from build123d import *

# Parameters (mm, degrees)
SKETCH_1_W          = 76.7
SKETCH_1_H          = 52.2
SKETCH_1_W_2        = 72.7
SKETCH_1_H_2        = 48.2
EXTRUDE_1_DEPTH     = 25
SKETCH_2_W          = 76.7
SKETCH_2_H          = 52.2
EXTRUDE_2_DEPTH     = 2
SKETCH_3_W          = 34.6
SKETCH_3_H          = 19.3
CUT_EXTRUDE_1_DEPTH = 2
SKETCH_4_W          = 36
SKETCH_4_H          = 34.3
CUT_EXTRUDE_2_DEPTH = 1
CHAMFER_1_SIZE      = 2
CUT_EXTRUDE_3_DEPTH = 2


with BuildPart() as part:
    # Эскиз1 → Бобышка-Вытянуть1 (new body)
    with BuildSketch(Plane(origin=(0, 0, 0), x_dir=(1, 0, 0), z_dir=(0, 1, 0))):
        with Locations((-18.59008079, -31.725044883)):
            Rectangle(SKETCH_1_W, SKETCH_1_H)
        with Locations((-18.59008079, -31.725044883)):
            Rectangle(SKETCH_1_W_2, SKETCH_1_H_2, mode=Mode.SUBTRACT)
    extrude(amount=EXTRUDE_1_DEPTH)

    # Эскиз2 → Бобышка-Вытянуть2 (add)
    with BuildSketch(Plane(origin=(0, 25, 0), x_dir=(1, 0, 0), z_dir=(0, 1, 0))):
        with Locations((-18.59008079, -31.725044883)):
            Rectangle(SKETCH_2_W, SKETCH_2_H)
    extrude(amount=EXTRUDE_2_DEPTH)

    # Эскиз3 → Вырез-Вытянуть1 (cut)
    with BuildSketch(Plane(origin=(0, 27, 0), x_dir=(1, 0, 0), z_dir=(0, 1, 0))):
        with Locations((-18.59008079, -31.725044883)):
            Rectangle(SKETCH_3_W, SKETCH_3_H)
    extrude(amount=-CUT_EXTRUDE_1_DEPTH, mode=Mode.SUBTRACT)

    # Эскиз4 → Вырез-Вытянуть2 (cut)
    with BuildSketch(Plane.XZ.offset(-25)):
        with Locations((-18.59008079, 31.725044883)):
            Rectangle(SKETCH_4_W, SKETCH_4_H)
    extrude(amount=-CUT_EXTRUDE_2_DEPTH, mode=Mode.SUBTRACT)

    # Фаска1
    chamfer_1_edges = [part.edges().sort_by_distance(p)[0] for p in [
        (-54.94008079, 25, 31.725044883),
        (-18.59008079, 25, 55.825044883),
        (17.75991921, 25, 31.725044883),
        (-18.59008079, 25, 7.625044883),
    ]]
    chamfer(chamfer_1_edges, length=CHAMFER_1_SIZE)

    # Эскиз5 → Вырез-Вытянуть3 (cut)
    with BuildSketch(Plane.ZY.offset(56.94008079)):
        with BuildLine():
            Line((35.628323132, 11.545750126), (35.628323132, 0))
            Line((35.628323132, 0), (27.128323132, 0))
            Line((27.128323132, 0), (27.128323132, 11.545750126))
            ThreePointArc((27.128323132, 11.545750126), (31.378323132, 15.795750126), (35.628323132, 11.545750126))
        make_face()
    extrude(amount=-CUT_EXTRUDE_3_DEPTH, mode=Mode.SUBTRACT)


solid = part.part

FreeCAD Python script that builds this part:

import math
import FreeCAD as App
import Part
import Sketcher


def edges_at(feature, points):
    """Names of the edges that pass closest to the given points."""
    edges = feature.Shape.Edges
    near = lambda p: min(range(len(edges)), key=lambda i: edges[i].distToShape(Part.Vertex(*p))[0])
    return sorted({f"Edge{near(p) + 1}" for p in points})

doc = App.newDocument("Part")
params = doc.addObject("Spreadsheet::Sheet", "Params")
for row, (alias, value) in enumerate([
    ("sketch1_width", "76.7 mm"),
    ("sketch1_width2", "72.7 mm"),
    ("sketch1_height", "52.2 mm"),
    ("sketch1_height2", "48.2 mm"),
    ("pad1_length", "25 mm"),
    ("sketch2_width", "76.7 mm"),
    ("sketch2_height", "52.2 mm"),
    ("pad2_length", "2 mm"),
    ("sketch3_width", "34.6 mm"),
    ("sketch3_height", "19.3 mm"),
    ("pocket1_length", "2 mm"),
    ("sketch4_width", "36 mm"),
    ("sketch4_height", "34.3 mm"),
    ("pocket2_length", "1 mm"),
    ("chamfer_size", "2 mm"),
    ("sketch5_radius", "4.25 mm"),
    ("pocket3_length", "2 mm"),
], start=1):
    params.set(f"A{row}", alias)
    params.set(f"B{row}", "=" + value)
    params.setAlias(f"B{row}", alias)

body = doc.addObject("PartDesign::Body", "Body")

sketch1 = body.newObject("Sketcher::SketchObject", "Sketch")
sketch1.AttachmentSupport = (doc.getObject("XZ_Plane"), [""])
sketch1.MapMode = "FlatFace"
sketch1.addGeometry(Part.LineSegment(App.Vector(-57, 6, 0), App.Vector(-57, 58, 0)), False)
sketch1.addGeometry(Part.LineSegment(App.Vector(-57, 58, 0), App.Vector(20, 58, 0)), False)
sketch1.addGeometry(Part.LineSegment(App.Vector(20, 58, 0), App.Vector(20, 6, 0)), False)
sketch1.addGeometry(Part.LineSegment(App.Vector(20, 6, 0), App.Vector(-57, 6, 0)), False)
sketch1.addGeometry(Part.LineSegment(App.Vector(18, 56, 0), App.Vector(-55, 56, 0)), False)
sketch1.addGeometry(Part.LineSegment(App.Vector(-55, 56, 0), App.Vector(-55, 8, 0)), False)
sketch1.addGeometry(Part.LineSegment(App.Vector(-55, 8, 0), App.Vector(18, 8, 0)), False)
sketch1.addGeometry(Part.LineSegment(App.Vector(18, 8, 0), App.Vector(18, 56, 0)), False)
sketch1.addConstraint(Sketcher.Constraint("Coincident", 0, 2, 1, 1))
sketch1.addConstraint(Sketcher.Constraint("Coincident", 1, 2, 2, 1))
sketch1.addConstraint(Sketcher.Constraint("Coincident", 2, 2, 3, 1))
sketch1.addConstraint(Sketcher.Constraint("Coincident", 3, 2, 0, 1))
sketch1.addConstraint(Sketcher.Constraint("Coincident", 4, 2, 5, 1))
sketch1.addConstraint(Sketcher.Constraint("Coincident", 5, 2, 6, 1))
sketch1.addConstraint(Sketcher.Constraint("Coincident", 6, 2, 7, 1))
sketch1.addConstraint(Sketcher.Constraint("Coincident", 7, 2, 4, 1))
sketch1.addConstraint(Sketcher.Constraint("Vertical", 0))
sketch1.addConstraint(Sketcher.Constraint("Horizontal", 1))
sketch1.addConstraint(Sketcher.Constraint("Vertical", 2))
sketch1.addConstraint(Sketcher.Constraint("Horizontal", 3))
sketch1.addConstraint(Sketcher.Constraint("Horizontal", 4))
sketch1.addConstraint(Sketcher.Constraint("Vertical", 5))
sketch1.addConstraint(Sketcher.Constraint("Horizontal", 6))
sketch1.addConstraint(Sketcher.Constraint("Vertical", 7))
sketch1.addConstraint(Sketcher.Constraint("DistanceX", 1, 1, 1, 2, 76.7))
sketch1.addConstraint(Sketcher.Constraint("DistanceX", 4, 2, 4, 1, 72.7))
sketch1.addConstraint(Sketcher.Constraint("DistanceY", 0, 1, 0, 2, 52.2))
sketch1.addConstraint(Sketcher.Constraint("DistanceY", 5, 2, 5, 1, 48.2))
sketch1.addConstraint(Sketcher.Constraint("DistanceX", 0, 2, 4, 2, 2.0))
sketch1.addConstraint(Sketcher.Constraint("DistanceY", 4, 2, 0, 2, 2.0))
sketch1.addConstraint(Sketcher.Constraint("DistanceX", 0, 2, -1, 1, 56.940081))
sketch1.addConstraint(Sketcher.Constraint("DistanceY", -1, 1, 0, 2, 57.825045))
sketch1.setExpression("Constraints[16]", "Params.sketch1_width")
sketch1.setExpression("Constraints[17]", "Params.sketch1_width2")
sketch1.setExpression("Constraints[18]", "Params.sketch1_height")
sketch1.setExpression("Constraints[19]", "Params.sketch1_height2")
pad1 = body.newObject("PartDesign::Pad", "Pad")
pad1.Profile = sketch1
pad1.setExpression("Length", "Params.pad1_length")
pad1.Reversed = True

sketch2 = body.newObject("Sketcher::SketchObject", "Sketch001")
sketch2.AttachmentSupport = (doc.getObject("XZ_Plane"), [""])
sketch2.MapMode = "FlatFace"
sketch2.AttachmentOffset = App.Placement(App.Vector(0, 0, -25), App.Rotation())
sketch2.addGeometry(Part.LineSegment(App.Vector(-57, 6, 0), App.Vector(-57, 58, 0)), False)
sketch2.addGeometry(Part.LineSegment(App.Vector(-57, 58, 0), App.Vector(20, 58, 0)), False)
sketch2.addGeometry(Part.LineSegment(App.Vector(20, 58, 0), App.Vector(20, 6, 0)), False)
sketch2.addGeometry(Part.LineSegment(App.Vector(20, 6, 0), App.Vector(-57, 6, 0)), False)
sketch2.addConstraint(Sketcher.Constraint("Coincident", 0, 2, 1, 1))
sketch2.addConstraint(Sketcher.Constraint("Coincident", 1, 2, 2, 1))
sketch2.addConstraint(Sketcher.Constraint("Coincident", 2, 2, 3, 1))
sketch2.addConstraint(Sketcher.Constraint("Coincident", 3, 2, 0, 1))
sketch2.addConstraint(Sketcher.Constraint("Vertical", 0))
sketch2.addConstraint(Sketcher.Constraint("Horizontal", 1))
sketch2.addConstraint(Sketcher.Constraint("Vertical", 2))
sketch2.addConstraint(Sketcher.Constraint("Horizontal", 3))
sketch2.addConstraint(Sketcher.Constraint("DistanceX", 1, 1, 1, 2, 76.7))
sketch2.addConstraint(Sketcher.Constraint("DistanceY", 0, 1, 0, 2, 52.2))
sketch2.addConstraint(Sketcher.Constraint("DistanceX", 0, 2, -1, 1, 56.940081))
sketch2.addConstraint(Sketcher.Constraint("DistanceY", -1, 1, 0, 2, 57.825045))
sketch2.setExpression("Constraints[8]", "Params.sketch2_width")
sketch2.setExpression("Constraints[9]", "Params.sketch2_height")
pad2 = body.newObject("PartDesign::Pad", "Pad001")
pad2.Profile = sketch2
pad2.setExpression("Length", "Params.pad2_length")
pad2.Reversed = True

sketch3 = body.newObject("Sketcher::SketchObject", "Sketch002")
sketch3.AttachmentSupport = (doc.getObject("XZ_Plane"), [""])
sketch3.MapMode = "FlatFace"
sketch3.AttachmentOffset = App.Placement(App.Vector(0, 0, -27), App.Rotation())
sketch3.addGeometry(Part.LineSegment(App.Vector(-36, 22, 0), App.Vector(-36, 41, 0)), False)
sketch3.addGeometry(Part.LineSegment(App.Vector(-36, 41, 0), App.Vector(-1, 41, 0)), False)
sketch3.addGeometry(Part.LineSegment(App.Vector(-1, 41, 0), App.Vector(-1, 22, 0)), False)
sketch3.addGeometry(Part.LineSegment(App.Vector(-1, 22, 0), App.Vector(-36, 22, 0)), False)
sketch3.addConstraint(Sketcher.Constraint("Coincident", 0, 2, 1, 1))
sketch3.addConstraint(Sketcher.Constraint("Coincident", 1, 2, 2, 1))
sketch3.addConstraint(Sketcher.Constraint("Coincident", 2, 2, 3, 1))
sketch3.addConstraint(Sketcher.Constraint("Coincident", 3, 2, 0, 1))
sketch3.addConstraint(Sketcher.Constraint("Vertical", 0))
sketch3.addConstraint(Sketcher.Constraint("Horizontal", 1))
sketch3.addConstraint(Sketcher.Constraint("Vertical", 2))
sketch3.addConstraint(Sketcher.Constraint("Horizontal", 3))
sketch3.addConstraint(Sketcher.Constraint("DistanceX", 1, 1, 1, 2, 34.6))
sketch3.addConstraint(Sketcher.Constraint("DistanceY", 0, 1, 0, 2, 19.3))
sketch3.addConstraint(Sketcher.Constraint("DistanceX", 0, 2, -1, 1, 35.890081))
sketch3.addConstraint(Sketcher.Constraint("DistanceY", -1, 1, 0, 2, 41.375045))
sketch3.setExpression("Constraints[8]", "Params.sketch3_width")
sketch3.setExpression("Constraints[9]", "Params.sketch3_height")
pocket1 = body.newObject("PartDesign::Pocket", "Pocket")
pocket1.Profile = sketch3
pocket1.setExpression("Length", "Params.pocket1_length")
pocket1.Reversed = True

sketch4 = body.newObject("Sketcher::SketchObject", "Sketch003")
sketch4.AttachmentSupport = (doc.getObject("XZ_Plane"), [""])
sketch4.MapMode = "FlatFace"
sketch4.AttachmentOffset = App.Placement(App.Vector(0, 0, -25), App.Rotation())
sketch4.addGeometry(Part.LineSegment(App.Vector(-37, 49, 0), App.Vector(-37, 15, 0)), False)
sketch4.addGeometry(Part.LineSegment(App.Vector(-37, 15, 0), App.Vector(-1, 15, 0)), False)
sketch4.addGeometry(Part.LineSegment(App.Vector(-1, 15, 0), App.Vector(-1, 49, 0)), False)
sketch4.addGeometry(Part.LineSegment(App.Vector(-1, 49, 0), App.Vector(-37, 49, 0)), False)
sketch4.addConstraint(Sketcher.Constraint("Coincident", 0, 2, 1, 1))
sketch4.addConstraint(Sketcher.Constraint("Coincident", 1, 2, 2, 1))
sketch4.addConstraint(Sketcher.Constraint("Coincident", 2, 2, 3, 1))
sketch4.addConstraint(Sketcher.Constraint("Coincident", 3, 2, 0, 1))
sketch4.addConstraint(Sketcher.Constraint("Vertical", 0))
sketch4.addConstraint(Sketcher.Constraint("Horizontal", 1))
sketch4.addConstraint(Sketcher.Constraint("Vertical", 2))
sketch4.addConstraint(Sketcher.Constraint("Horizontal", 3))
sketch4.addConstraint(Sketcher.Constraint("DistanceX", 1, 1, 1, 2, 36.0))
sketch4.addConstraint(Sketcher.Constraint("DistanceY", 0, 2, 0, 1, 34.3))
sketch4.addConstraint(Sketcher.Constraint("DistanceX", 0, 2, -1, 1, 36.590081))
sketch4.addConstraint(Sketcher.Constraint("DistanceY", -1, 1, 0, 2, 14.575045))
sketch4.setExpression("Constraints[8]", "Params.sketch4_width")
sketch4.setExpression("Constraints[9]", "Params.sketch4_height")
pocket2 = body.newObject("PartDesign::Pocket", "Pocket001")
pocket2.Profile = sketch4
pocket2.setExpression("Length", "Params.pocket2_length")
doc.recompute()

chamfer = body.newObject("PartDesign::Chamfer", "Chamfer")
chamfer.Base = (pocket2, edges_at(pocket2, [
    (-54.94, 25, 31.725),
    (-18.59, 25, 55.825),
    (17.76, 25, 31.725),
    (-18.59, 25, 7.625),
]))
chamfer.setExpression("Size", "Params.chamfer_size")

sketch5 = body.newObject("Sketcher::SketchObject", "Sketch004")
sketch5.AttachmentSupport = (doc.getObject("YZ_Plane"), [""])
sketch5.MapMode = "FlatFace"
sketch5.AttachmentOffset = App.Placement(App.Vector(0, 0, -56.940081), App.Rotation())
sketch5.addGeometry(Part.LineSegment(App.Vector(0, 35.6, 0), App.Vector(11.5, 35.6, 0)), False)
sketch5.addGeometry(Part.ArcOfCircle(Part.Circle(App.Vector(11.5, 31.4, 0), App.Vector(0, 0, 1), 4.2), math.radians(-90), math.radians(90)), False)
sketch5.addGeometry(Part.LineSegment(App.Vector(11.5, 27.1, 0), App.Vector(0, 27.1, 0)), False)
sketch5.addGeometry(Part.LineSegment(App.Vector(0, 27.1, 0), App.Vector(0, 35.6, 0)), False)
sketch5.addConstraint(Sketcher.Constraint("Tangent", 0, 2, 1, 2))
sketch5.addConstraint(Sketcher.Constraint("Tangent", 1, 1, 2, 1))
sketch5.addConstraint(Sketcher.Constraint("Coincident", 2, 2, 3, 1))
sketch5.addConstraint(Sketcher.Constraint("Coincident", 3, 2, 0, 1))
sketch5.addConstraint(Sketcher.Constraint("Horizontal", 0))
sketch5.addConstraint(Sketcher.Constraint("Horizontal", 2))
sketch5.addConstraint(Sketcher.Constraint("Vertical", 3))
sketch5.addConstraint(Sketcher.Constraint("PointOnObject", 2, 2, -2))
sketch5.addConstraint(Sketcher.Constraint("Radius", 1, 4.25))
sketch5.addConstraint(Sketcher.Constraint("DistanceX", 0, 1, 0, 2, 11.54575))
sketch5.addConstraint(Sketcher.Constraint("DistanceY", -1, 1, 1, 3, 31.378323))
sketch5.setExpression("Constraints[8]", "Params.sketch5_radius")
pocket3 = body.newObject("PartDesign::Pocket", "Pocket002")
pocket3.Profile = sketch5
pocket3.setExpression("Length", "Params.pocket3_length")
pocket3.Reversed = True

doc.recompute()
